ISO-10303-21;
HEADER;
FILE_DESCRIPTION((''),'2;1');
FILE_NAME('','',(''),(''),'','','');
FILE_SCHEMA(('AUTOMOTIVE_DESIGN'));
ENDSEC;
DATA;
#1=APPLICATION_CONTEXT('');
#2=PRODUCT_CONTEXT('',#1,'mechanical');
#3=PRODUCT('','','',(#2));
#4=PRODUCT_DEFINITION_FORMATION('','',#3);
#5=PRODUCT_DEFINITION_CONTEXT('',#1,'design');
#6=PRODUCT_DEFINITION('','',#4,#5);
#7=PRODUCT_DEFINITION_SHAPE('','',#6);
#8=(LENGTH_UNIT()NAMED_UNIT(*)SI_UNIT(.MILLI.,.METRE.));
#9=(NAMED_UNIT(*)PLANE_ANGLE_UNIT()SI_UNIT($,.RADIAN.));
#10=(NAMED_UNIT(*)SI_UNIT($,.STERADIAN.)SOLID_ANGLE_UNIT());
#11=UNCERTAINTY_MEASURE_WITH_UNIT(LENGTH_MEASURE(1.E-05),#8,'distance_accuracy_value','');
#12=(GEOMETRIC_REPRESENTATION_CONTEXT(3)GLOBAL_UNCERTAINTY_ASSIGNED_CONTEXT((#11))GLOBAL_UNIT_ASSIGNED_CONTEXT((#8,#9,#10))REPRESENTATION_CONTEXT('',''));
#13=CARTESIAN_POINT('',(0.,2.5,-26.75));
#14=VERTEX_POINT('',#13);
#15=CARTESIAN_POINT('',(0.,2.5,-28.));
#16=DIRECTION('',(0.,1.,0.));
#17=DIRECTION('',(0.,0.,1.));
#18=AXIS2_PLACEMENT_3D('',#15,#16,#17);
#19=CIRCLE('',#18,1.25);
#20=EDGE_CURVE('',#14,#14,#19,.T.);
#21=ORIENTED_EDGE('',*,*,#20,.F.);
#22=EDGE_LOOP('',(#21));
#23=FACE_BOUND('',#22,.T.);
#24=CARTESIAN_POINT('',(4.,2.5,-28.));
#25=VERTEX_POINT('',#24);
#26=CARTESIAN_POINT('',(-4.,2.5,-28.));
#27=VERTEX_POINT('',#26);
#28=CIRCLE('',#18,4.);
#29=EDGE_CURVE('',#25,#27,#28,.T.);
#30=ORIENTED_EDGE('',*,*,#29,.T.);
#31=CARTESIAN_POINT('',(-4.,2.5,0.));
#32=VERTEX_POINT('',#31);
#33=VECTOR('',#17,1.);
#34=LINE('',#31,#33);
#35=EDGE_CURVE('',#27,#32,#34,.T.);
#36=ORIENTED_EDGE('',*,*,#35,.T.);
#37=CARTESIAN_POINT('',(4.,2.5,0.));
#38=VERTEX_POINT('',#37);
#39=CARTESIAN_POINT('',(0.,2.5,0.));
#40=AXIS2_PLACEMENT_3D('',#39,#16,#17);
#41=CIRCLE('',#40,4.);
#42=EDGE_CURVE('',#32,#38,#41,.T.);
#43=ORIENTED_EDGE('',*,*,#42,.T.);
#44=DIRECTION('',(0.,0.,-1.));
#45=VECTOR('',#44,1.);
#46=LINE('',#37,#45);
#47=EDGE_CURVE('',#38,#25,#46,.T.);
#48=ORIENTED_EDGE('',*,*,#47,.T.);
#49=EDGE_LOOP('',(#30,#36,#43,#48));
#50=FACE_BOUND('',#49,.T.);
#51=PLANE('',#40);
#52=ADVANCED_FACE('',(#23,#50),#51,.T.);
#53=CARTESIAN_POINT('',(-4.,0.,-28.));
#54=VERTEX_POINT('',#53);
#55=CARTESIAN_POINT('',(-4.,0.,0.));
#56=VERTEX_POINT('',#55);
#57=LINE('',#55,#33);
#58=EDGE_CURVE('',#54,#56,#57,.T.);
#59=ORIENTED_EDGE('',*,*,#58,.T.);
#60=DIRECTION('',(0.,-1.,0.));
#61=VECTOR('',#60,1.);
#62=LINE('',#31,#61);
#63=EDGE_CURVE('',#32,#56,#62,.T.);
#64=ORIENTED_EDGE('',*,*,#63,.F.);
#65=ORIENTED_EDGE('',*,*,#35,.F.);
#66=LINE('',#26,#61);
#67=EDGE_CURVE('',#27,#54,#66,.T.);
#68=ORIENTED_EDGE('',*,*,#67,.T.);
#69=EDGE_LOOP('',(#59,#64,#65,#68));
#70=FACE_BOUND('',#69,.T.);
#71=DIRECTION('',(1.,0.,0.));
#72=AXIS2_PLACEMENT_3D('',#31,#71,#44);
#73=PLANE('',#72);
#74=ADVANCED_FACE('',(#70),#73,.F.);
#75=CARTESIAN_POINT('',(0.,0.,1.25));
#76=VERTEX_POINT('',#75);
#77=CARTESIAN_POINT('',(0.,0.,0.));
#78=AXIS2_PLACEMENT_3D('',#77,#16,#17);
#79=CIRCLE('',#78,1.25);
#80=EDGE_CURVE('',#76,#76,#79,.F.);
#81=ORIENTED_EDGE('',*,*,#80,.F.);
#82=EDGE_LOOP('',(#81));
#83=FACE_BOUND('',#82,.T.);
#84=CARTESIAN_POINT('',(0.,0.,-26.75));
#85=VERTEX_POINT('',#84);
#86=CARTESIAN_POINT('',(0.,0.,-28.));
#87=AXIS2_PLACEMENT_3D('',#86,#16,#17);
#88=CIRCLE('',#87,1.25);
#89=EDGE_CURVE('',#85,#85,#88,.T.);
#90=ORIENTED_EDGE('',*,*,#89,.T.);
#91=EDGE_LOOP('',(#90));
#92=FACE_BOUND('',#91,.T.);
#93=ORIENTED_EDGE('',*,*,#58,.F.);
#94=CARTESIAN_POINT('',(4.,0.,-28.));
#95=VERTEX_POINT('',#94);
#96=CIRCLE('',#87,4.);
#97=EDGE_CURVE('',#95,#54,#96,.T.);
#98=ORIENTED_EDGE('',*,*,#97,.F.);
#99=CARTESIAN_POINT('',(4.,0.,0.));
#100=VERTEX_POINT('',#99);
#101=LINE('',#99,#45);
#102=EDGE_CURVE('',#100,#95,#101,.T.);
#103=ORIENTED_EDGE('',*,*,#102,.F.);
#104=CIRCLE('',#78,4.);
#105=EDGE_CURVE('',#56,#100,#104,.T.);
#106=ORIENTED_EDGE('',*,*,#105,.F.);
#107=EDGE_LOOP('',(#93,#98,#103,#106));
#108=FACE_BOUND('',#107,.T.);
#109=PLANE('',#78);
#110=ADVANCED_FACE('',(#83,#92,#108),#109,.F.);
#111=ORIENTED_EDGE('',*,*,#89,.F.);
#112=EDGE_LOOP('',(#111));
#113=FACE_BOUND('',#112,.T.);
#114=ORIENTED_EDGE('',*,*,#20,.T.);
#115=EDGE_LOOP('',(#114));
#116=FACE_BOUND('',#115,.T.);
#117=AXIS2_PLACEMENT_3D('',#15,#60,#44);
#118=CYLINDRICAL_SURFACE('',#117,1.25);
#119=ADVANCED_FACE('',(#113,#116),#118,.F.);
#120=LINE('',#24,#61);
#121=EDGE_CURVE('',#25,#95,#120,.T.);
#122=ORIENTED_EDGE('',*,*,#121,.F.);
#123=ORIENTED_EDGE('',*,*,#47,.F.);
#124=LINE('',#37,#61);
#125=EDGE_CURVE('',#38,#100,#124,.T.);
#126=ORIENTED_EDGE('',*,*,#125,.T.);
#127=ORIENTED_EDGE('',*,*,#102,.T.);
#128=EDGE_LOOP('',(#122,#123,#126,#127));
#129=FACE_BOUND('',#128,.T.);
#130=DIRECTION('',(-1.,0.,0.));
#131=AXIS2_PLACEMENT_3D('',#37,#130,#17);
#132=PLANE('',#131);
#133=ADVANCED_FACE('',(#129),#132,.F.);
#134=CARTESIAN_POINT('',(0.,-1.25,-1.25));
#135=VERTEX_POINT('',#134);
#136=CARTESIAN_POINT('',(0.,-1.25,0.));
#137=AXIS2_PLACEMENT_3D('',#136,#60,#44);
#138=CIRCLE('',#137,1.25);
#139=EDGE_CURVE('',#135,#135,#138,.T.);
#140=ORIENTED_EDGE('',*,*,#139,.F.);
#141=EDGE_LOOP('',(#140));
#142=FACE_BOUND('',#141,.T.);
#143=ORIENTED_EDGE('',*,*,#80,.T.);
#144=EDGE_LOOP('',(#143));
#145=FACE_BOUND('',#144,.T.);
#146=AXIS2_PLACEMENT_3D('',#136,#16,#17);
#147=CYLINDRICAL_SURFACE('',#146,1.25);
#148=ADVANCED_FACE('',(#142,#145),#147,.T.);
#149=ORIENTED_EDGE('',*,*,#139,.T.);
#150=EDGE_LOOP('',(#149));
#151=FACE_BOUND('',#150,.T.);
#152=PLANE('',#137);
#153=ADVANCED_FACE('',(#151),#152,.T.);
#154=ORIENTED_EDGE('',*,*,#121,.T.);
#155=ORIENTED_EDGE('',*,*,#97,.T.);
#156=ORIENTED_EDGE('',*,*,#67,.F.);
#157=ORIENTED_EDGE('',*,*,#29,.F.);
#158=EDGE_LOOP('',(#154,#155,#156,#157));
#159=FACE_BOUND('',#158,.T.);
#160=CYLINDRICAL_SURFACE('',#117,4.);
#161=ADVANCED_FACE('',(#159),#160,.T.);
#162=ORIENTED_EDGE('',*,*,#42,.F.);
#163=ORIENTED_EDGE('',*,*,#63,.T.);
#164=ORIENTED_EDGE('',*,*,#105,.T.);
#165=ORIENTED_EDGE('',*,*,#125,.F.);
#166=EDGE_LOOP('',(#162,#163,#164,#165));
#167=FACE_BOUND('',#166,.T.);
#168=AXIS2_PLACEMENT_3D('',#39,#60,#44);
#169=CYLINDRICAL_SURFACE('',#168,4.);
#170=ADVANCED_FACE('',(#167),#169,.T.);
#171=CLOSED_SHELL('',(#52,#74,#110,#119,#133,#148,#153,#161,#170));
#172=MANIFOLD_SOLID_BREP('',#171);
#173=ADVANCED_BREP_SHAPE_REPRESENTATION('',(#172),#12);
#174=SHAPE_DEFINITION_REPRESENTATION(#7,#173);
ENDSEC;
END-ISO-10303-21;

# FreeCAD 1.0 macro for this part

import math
import FreeCAD as App
import Part
import Sketcher
from FreeCAD import Vector

doc = App.newDocument("Part")
params = doc.addObject("Spreadsheet::Sheet", "Params")
for row, (alias, value) in enumerate([
    ("sketch1_radius", "4 mm"),
    ("sketch1_diameter", "2.5 mm"),
    ("sketch1_height", "28 mm"),
    ("pad1_length", "2.5 mm"),
    ("sketch2_diameter", "2.5 mm"),
    ("pad2_length", "1.25 mm"),
], start=1):
    params.set(f"A{row}", alias)
    params.set(f"B{row}", "=" + value)
    params.setAlias(f"B{row}", alias)

body = doc.addObject("PartDesign::Body", "Body")

# Sketch on XZ plane
sketch1 = body.newObject("Sketcher::SketchObject", "Sketch")
sketch1.AttachmentSupport = (doc.getObject("XZ_Plane"), [""])
sketch1.MapMode = "FlatFace"
sketch1.addGeometry([
    Part.LineSegment(Vector(-4, -28, 0), Vector(-4, 0, 0)),  # 0
    Part.ArcOfCircle(Part.Circle(Vector(0, 0, 0), Vector(0, 0, 1), 4), math.radians(0), math.radians(180)),  # 1
    Part.LineSegment(Vector(4, 0, 0), Vector(4, -28, 0)),  # 2
    Part.ArcOfCircle(Part.Circle(Vector(0, -28, 0), Vector(0, 0, 1), 4), math.radians(180), math.radians(360)),  # 3
    Part.Circle(Vector(0, -28, 0), Vector(0, 0, 1), 1.25),  # 4
], False)
sketch1.addConstraint([
    Sketcher.Constraint("Tangent", 0, 2, 1, 2),
    Sketcher.Constraint("Tangent", 1, 1, 2, 1),
    Sketcher.Constraint("Tangent", 2, 2, 3, 2),
    Sketcher.Constraint("Tangent", 3, 1, 0, 1),
    Sketcher.Constraint("Vertical", 0),
    Sketcher.Constraint("Vertical", 2),
    Sketcher.Constraint("Coincident", 1, 3, -1, 1),
    Sketcher.Constraint("Coincident", 4, 3, 3, 3),
    Sketcher.Constraint("Radius", 1, 4.0),
    Sketcher.Constraint("Diameter", 4, 2.5),
    Sketcher.Constraint("DistanceY", 0, 1, 0, 2, 28.0),
])
sketch1.setExpression("Constraints[8]", "Params.sketch1_radius")
sketch1.setExpression("Constraints[9]", "Params.sketch1_diameter")
sketch1.setExpression("Constraints[10]", "Params.sketch1_height")
pad1 = body.newObject("PartDesign::Pad", "Pad")
pad1.Profile = sketch1
pad1.setExpression("Length", "Params.pad1_length")
pad1.Reversed = True

# Sketch on XZ plane
sketch2 = body.newObject("Sketcher::SketchObject", "Sketch001")
sketch2.AttachmentSupport = (doc.getObject("XZ_Plane"), [""])
sketch2.MapMode = "FlatFace"
sketch2.addGeometry(Part.Circle(Vector(0, 0, 0), Vector(0, 0, 1), 1.25), False)
sketch2.addConstraint([
    Sketcher.Constraint("Coincident", 0, 3, -1, 1),
    Sketcher.Constraint("Diameter", 0, 2.5),
])
sketch2.setExpression("Constraints[1]", "Params.sketch2_diameter")
pad2 = body.newObject("PartDesign::Pad", "Pad001")
pad2.Profile = sketch2
pad2.setExpression("Length", "Params.pad2_length")

doc.recompute()
